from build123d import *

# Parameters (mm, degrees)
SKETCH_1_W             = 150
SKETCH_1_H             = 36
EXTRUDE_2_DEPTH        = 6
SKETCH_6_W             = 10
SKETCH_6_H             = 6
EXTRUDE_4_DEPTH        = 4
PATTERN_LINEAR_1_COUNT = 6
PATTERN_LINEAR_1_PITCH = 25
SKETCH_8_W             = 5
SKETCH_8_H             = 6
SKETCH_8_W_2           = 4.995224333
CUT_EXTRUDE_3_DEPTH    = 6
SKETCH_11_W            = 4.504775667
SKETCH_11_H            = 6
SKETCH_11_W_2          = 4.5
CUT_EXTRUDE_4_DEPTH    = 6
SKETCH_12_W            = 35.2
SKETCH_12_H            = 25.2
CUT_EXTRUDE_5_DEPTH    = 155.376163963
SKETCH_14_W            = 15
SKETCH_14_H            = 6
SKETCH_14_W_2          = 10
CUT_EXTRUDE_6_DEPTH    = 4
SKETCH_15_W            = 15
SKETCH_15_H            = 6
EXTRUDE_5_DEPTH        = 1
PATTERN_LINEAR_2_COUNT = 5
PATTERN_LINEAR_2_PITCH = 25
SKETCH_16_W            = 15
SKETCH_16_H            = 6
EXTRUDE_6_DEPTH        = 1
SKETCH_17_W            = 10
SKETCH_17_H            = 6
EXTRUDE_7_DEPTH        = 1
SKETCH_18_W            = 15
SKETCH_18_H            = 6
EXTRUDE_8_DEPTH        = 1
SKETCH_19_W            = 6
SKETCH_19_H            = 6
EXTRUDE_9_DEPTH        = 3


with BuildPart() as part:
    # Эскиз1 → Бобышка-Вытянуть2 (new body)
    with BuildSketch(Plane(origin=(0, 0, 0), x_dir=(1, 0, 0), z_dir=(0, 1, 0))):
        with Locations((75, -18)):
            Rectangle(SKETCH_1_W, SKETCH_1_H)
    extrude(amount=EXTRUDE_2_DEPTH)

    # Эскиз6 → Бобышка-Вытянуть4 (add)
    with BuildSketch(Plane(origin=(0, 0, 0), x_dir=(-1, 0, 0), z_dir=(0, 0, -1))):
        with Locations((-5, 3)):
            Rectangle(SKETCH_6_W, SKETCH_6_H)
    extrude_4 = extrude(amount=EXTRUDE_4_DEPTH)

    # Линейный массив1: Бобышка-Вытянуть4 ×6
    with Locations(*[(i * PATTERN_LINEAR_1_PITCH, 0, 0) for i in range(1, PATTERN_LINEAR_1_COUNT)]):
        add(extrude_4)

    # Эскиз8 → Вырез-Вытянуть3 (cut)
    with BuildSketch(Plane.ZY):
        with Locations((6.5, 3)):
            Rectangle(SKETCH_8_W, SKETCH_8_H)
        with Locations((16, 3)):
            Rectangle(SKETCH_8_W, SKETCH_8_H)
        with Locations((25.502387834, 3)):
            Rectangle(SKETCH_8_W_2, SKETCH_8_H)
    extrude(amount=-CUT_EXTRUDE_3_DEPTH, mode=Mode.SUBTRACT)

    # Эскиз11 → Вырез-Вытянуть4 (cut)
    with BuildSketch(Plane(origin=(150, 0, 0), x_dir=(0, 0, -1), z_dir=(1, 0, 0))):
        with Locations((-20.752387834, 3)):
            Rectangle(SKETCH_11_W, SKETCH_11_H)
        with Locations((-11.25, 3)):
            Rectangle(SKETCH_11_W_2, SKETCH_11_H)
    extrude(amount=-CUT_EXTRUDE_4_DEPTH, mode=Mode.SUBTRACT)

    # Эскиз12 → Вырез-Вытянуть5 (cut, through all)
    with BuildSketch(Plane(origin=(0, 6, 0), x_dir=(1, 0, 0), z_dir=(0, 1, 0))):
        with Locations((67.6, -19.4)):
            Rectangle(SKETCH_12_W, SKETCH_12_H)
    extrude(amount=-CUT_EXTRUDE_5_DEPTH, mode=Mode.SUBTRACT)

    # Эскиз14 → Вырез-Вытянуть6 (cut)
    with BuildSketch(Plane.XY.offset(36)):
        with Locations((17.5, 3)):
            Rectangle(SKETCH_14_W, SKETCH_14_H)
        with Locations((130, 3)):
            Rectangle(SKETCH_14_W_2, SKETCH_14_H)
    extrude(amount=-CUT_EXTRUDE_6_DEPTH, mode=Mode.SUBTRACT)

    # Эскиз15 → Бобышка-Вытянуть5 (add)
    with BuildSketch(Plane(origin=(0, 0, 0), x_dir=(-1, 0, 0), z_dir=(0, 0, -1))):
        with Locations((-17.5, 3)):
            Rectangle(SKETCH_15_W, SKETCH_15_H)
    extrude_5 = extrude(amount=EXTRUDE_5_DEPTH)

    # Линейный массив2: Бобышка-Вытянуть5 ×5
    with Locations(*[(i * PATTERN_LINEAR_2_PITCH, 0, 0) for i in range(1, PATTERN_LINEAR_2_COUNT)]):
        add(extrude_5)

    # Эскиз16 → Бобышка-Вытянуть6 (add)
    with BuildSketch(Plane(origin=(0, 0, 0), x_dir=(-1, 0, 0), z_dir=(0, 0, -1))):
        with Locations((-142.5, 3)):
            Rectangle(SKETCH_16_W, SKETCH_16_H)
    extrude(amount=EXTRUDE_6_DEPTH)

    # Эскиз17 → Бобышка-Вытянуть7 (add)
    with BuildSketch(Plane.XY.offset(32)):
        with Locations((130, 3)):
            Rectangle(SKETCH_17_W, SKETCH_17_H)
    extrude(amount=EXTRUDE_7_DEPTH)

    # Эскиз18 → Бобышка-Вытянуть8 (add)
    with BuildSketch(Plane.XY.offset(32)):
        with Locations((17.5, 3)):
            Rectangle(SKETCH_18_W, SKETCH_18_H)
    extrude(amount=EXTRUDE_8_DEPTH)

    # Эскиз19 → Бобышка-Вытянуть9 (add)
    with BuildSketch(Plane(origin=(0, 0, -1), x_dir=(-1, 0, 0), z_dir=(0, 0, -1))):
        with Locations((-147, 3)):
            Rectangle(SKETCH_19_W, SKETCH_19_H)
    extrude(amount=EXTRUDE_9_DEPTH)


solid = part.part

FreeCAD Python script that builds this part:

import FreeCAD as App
import Part
import Sketcher

V = App.Vector
Q = App.Units.Quantity


def add_polygon(sketch, points):
    """Adds a closed chain of lines whose ends are joined by coincident constraints."""
    first, n = sketch.GeometryCount, len(points)
    for a, b in zip(points, points[1:] + points[:1]):
        sketch.addGeometry(Part.LineSegment(App.Vector(*a, 0), App.Vector(*b, 0)), False)
    for i in range(n):
        sketch.addConstraint(Sketcher.Constraint("Coincident", first + i, 2, first + (i + 1) % n, 1))

doc = App.newDocument("Part")
body = doc.addObject("PartDesign::Body", "Body")

# Sketch on XZ plane
sketch1 = body.newObject("Sketcher::SketchObject", "Sketch")
sketch1.AttachmentSupport = (doc.getObject("XZ_Plane"), [""])
sketch1.MapMode = "FlatFace"
add_polygon(sketch1, [(0, 0), (0, 36), (150, 36), (150, 0)])  # lines 0-3
sketch1.addConstraint(Sketcher.Constraint("Vertical", 0))
sketch1.addConstraint(Sketcher.Constraint("Horizontal", 1))
sketch1.addConstraint(Sketcher.Constraint("Vertical", 2))
sketch1.addConstraint(Sketcher.Constraint("Horizontal", 3))
sketch1.addConstraint(Sketcher.Constraint("Coincident", 3, 2, -1, 1))
sketch1.addConstraint(Sketcher.Constraint("DistanceX", 1, 1, 1, 2, Q("150 mm")))
sketch1.addConstraint(Sketcher.Constraint("DistanceY", 0, 1, 0, 2, Q("36 mm")))
pad1 = body.newObject("PartDesign::Pad", "Pad")
pad1.Profile = sketch1
pad1.Length = 6
pad1.Reversed = True

# Sketch on XY plane
sketch2 = body.newObject("Sketcher::SketchObject", "Sketch001")
sketch2.AttachmentSupport = (doc.getObject("XY_Plane"), [""])
sketch2.MapMode = "FlatFace"
add_polygon(sketch2, [(10, 6), (10, 0), (0, 0), (0, 6)])  # lines 0-3
sketch2.addConstraint(Sketcher.Constraint("Vertical", 0))
sketch2.addConstraint(Sketcher.Constraint("Horizontal", 1))
sketch2.addConstraint(Sketcher.Constraint("Vertical", 2))
sketch2.addConstraint(Sketcher.Constraint("Horizontal", 3))
sketch2.addConstraint(Sketcher.Constraint("Coincident", 1, 2, -1, 1))
sketch2.addConstraint(Sketcher.Constraint("DistanceX", 1, 2, 1, 1, Q("10 mm")))
sketch2.addConstraint(Sketcher.Constraint("DistanceY", 0, 2, 0, 1, Q("6 mm")))
pad2 = body.newObject("PartDesign::Pad", "Pad001")
pad2.Profile = sketch2
pad2.Length = 4
pad2.Reversed = True
doc.recompute()

linearpattern = body.newObject("PartDesign::LinearPattern", "LinearPattern")
linearpattern.Originals = [pad2]
linearpattern.Direction = (doc.getObject("X_Axis"), [""])
linearpattern.Mode = "offset"
linearpattern.Offset = 25
linearpattern.Occurrences = 6
body.Tip = linearpattern

# Sketch on YZ plane
sketch3 = body.newObject("Sketcher::SketchObject", "Sketch002")
sketch3.AttachmentSupport = (doc.getObject("YZ_Plane"), [""])
sketch3.MapMode = "FlatFace"
add_polygon(sketch3, [(6, 4), (0, 4), (0, 9), (6, 9)])  # lines 0-3
add_polygon(sketch3, [(6, 13.5), (0, 13.5), (0, 18.5), (6, 18.5)])  # lines 4-7
add_polygon(sketch3, [(6, 23), (0, 23), (0, 28), (6, 28)])  # lines 8-11
sketch3.addConstraint(Sketcher.Constraint("Horizontal", 0))
sketch3.addConstraint(Sketcher.Constraint("Vertical", 1))
sketch3.addConstraint(Sketcher.Constraint("Horizontal", 2))
sketch3.addConstraint(Sketcher.Constraint("Vertical", 3))
sketch3.addConstraint(Sketcher.Constraint("Horizontal", 4))
sketch3.addConstraint(Sketcher.Constraint("Vertical", 5))
sketch3.addConstraint(Sketcher.Constraint("Horizontal", 6))
sketch3.addConstraint(Sketcher.Constraint("Vertical", 7))
sketch3.addConstraint(Sketcher.Constraint("Horizontal", 8))
sketch3.addConstraint(Sketcher.Constraint("Vertical", 9))
sketch3.addConstraint(Sketcher.Constraint("Horizontal", 10))
sketch3.addConstraint(Sketcher.Constraint("Vertical", 11))
sketch3.addConstraint(Sketcher.Constraint("PointOnObject", 0, 2, -2))
sketch3.addConstraint(Sketcher.Constraint("PointOnObject", 4, 2, -2))
sketch3.addConstraint(Sketcher.Constraint("PointOnObject", 8, 2, -2))
sketch3.addConstraint(Sketcher.Constraint("Vertical", 3, 2, 6, 2))
sketch3.addConstraint(Sketcher.Constraint("Vertical", 7, 2, 10, 2))
sketch3.addConstraint(Sketcher.Constraint("Equal", 3, 5))
sketch3.addConstraint(Sketcher.Constraint("DistanceX", 0, 2, 0, 1, Q("6 mm")))
sketch3.addConstraint(Sketcher.Constraint("DistanceY", 1, 1, 1, 2, Q("5 mm")))
sketch3.addConstraint(Sketcher.Constraint("DistanceY", -1, 1, 0, 2, Q("4 mm")))
sketch3.addConstraint(Sketcher.Constraint("DistanceY", -1, 1, 9, 2, Q("28 mm")))
sketch3.addConstraint(Sketcher.Constraint("DistanceY", -1, 1, 4, 2, Q("13.5 mm")))
sketch3.addConstraint(Sketcher.Constraint("DistanceY", 9, 1, 9, 2, Q("4.995224 mm")))
pocket1 = body.newObject("PartDesign::Pocket", "Pocket")
pocket1.Profile = sketch3
pocket1.Length = 6
pocket1.Reversed = True

# Sketch on YZ plane
sketch4 = body.newObject("Sketcher::SketchObject", "Sketch003")
sketch4.AttachmentSupport = (doc.getObject("YZ_Plane"), [""])
sketch4.MapMode = "FlatFace"
sketch4.AttachmentOffset = App.Placement(V(0, 0, 150), App.Rotation())
add_polygon(sketch4, [(6, 23), (0, 23), (0, 18.5), (6, 18.5)])  # lines 0-3
add_polygon(sketch4, [(6, 13.5), (0, 13.5), (0, 9), (6, 9)])  # lines 4-7
sketch4.addConstraint(Sketcher.Constraint("Horizontal", 0))
sketch4.addConstraint(Sketcher.Constraint("Vertical", 1))
sketch4.addConstraint(Sketcher.Constraint("Horizontal", 2))
sketch4.addConstraint(Sketcher.Constraint("Vertical", 3))
sketch4.addConstraint(Sketcher.Constraint("Horizontal", 4))
sketch4.addConstraint(Sketcher.Constraint("Vertical", 5))
sketch4.addConstraint(Sketcher.Constraint("Horizontal", 6))
sketch4.addConstraint(Sketcher.Constraint("Vertical", 7))
sketch4.addConstraint(Sketcher.Constraint("PointOnObject", 0, 2, -2))
sketch4.addConstraint(Sketcher.Constraint("PointOnObject", 4, 2, -2))
sketch4.addConstraint(Sketcher.Constraint("Vertical", 3, 2, 6, 2))
sketch4.addConstraint(Sketcher.Constraint("DistanceX", 0, 2, 0, 1, Q("6 mm")))
sketch4.addConstraint(Sketcher.Constraint("DistanceY", 5, 2, 5, 1, Q("4.5 mm")))
sketch4.addConstraint(Sketcher.Constraint("DistanceY", -1, 1, 5, 2, Q("9 mm")))
sketch4.addConstraint(Sketcher.Constraint("DistanceY", 4, 2, 1, 2, Q("5 mm")))
sketch4.addConstraint(Sketcher.Constraint("DistanceY", 1, 2, 1, 1, Q("4.504776 mm")))
pocket2 = body.newObject("PartDesign::Pocket", "Pocket001")
pocket2.Profile = sketch4
pocket2.Length = 6

# Sketch on XZ plane
sketch5 = body.newObject("Sketcher::SketchObject", "Sketch004")
sketch5.AttachmentSupport = (doc.getObject("XZ_Plane"), [""])
sketch5.MapMode = "FlatFace"
sketch5.AttachmentOffset = App.Placement(V(0, 0, -6), App.Rotation())
add_polygon(sketch5, [(50, 7), (50, 32), (85, 32), (85, 7)])  # lines 0-3
sketch5.addConstraint(Sketcher.Constraint("Vertical", 0))
sketch5.addConstraint(Sketcher.Constraint("Horizontal", 1))
sketch5.addConstraint(Sketcher.Constraint("Vertical", 2))
sketch5.addConstraint(Sketcher.Constraint("Horizontal", 3))
sketch5.addConstraint(Sketcher.Constraint("DistanceX", 1, 1, 1, 2, Q("35.2 mm")))
sketch5.addConstraint(Sketcher.Constraint("DistanceY", 0, 1, 0, 2, Q("25.2 mm")))
sketch5.addConstraint(Sketcher.Constraint("DistanceX", -1, 1, 0, 2, Q("50 mm")))
sketch5.addConstraint(Sketcher.Constraint("DistanceY", -1, 1, 0, 2, Q("32 mm")))
pocket3 = body.newObject("PartDesign::Pocket", "Pocket002")
pocket3.Profile = sketch5
pocket3.Type = "ThroughAll"
pocket3.Reversed = True

# Sketch on XY plane
sketch6 = body.newObject("Sketcher::SketchObject", "Sketch005")
sketch6.AttachmentSupport = (doc.getObject("XY_Plane"), [""])
sketch6.MapMode = "FlatFace"
sketch6.AttachmentOffset = App.Placement(V(0, 0, 36), App.Rotation())
add_polygon(sketch6, [(10, 6), (10, 0), (25, 0), (25, 6)])  # lines 0-3
add_polygon(sketch6, [(125, 6), (125, 0), (135, 0), (135, 6)])  # lines 4-7
sketch6.addConstraint(Sketcher.Constraint("Vertical", 0))
sketch6.addConstraint(Sketcher.Constraint("Horizontal", 1))
sketch6.addConstraint(Sketcher.Constraint("Vertical", 2))
sketch6.addConstraint(Sketcher.Constraint("Horizontal", 3))
sketch6.addConstraint(Sketcher.Constraint("Vertical", 4))
sketch6.addConstraint(Sketcher.Constraint("Horizontal", 5))
sketch6.addConstraint(Sketcher.Constraint("Vertical", 6))
sketch6.addConstraint(Sketcher.Constraint("Horizontal", 7))
sketch6.addConstraint(Sketcher.Constraint("PointOnObject", 0, 2, -1))
sketch6.addConstraint(Sketcher.Constraint("PointOnObject", 4, 2, -1))
sketch6.addConstraint(Sketcher.Constraint("Horizontal", 3, 2, 6, 2))
sketch6.addConstraint(Sketcher.Constraint("DistanceX", 1, 1, 1, 2, Q("15 mm")))
sketch6.addConstraint(Sketcher.Constraint("DistanceX", 5, 1, 5, 2, Q("10 mm")))
sketch6.addConstraint(Sketcher.Constraint("DistanceY", 0, 2, 0, 1, Q("6 mm")))
sketch6.addConstraint(Sketcher.Constraint("DistanceX", -1, 1, 0, 2, Q("10 mm")))
sketch6.addConstraint(Sketcher.Constraint("DistanceX", -1, 1, 4, 2, Q("125 mm")))
pocket4 = body.newObject("PartDesign::Pocket", "Pocket003")
pocket4.Profile = sketch6
pocket4.Length = 4

# Sketch on XY plane
sketch7 = body.newObject("Sketcher::SketchObject", "Sketch006")
sketch7.AttachmentSupport = (doc.getObject("XY_Plane"), [""])
sketch7.MapMode = "FlatFace"
add_polygon(sketch7, [(25, 6), (25, 0), (10, 0), (10, 6)])  # lines 0-3
sketch7.addConstraint(Sketcher.Constraint("Vertical", 0))
sketch7.addConstraint(Sketcher.Constraint("Horizontal", 1))
sketch7.addConstraint(Sketcher.Constraint("Vertical", 2))
sketch7.addConstraint(Sketcher.Constraint("Horizontal", 3))
sketch7.addConstraint(Sketcher.Constraint("PointOnObject", 0, 2, -1))
sketch7.addConstraint(Sketcher.Constraint("DistanceX", 1, 2, 1, 1, Q("15 mm")))
sketch7.addConstraint(Sketcher.Constraint("DistanceY", 0, 2, 0, 1, Q("6 mm")))
sketch7.addConstraint(Sketcher.Constraint("DistanceX", -1, 1, 0, 2, Q("25 mm")))
pad3 = body.newObject("PartDesign::Pad", "Pad002")
pad3.Profile = sketch7
pad3.Length = 1
pad3.Reversed = True
doc.recompute()

linearpattern2 = body.newObject("PartDesign::LinearPattern", "LinearPattern001")
linearpattern2.Originals = [pad3]
linearpattern2.Direction = (doc.getObject("X_Axis"), [""])
linearpattern2.Mode = "offset"
linearpattern2.Offset = 25
linearpattern2.Occurrences = 5
body.Tip = linearpattern2

# Sketch on XY plane
sketch8 = body.newObject("Sketcher::SketchObject", "Sketch007")
sketch8.AttachmentSupport = (doc.getObject("XY_Plane"), [""])
sketch8.MapMode = "FlatFace"
add_polygon(sketch8, [(150, 6), (150, 0), (135, 0), (135, 6)])  # lines 0-3
sketch8.addConstraint(Sketcher.Constraint("Vertical", 0))
sketch8.addConstraint(Sketcher.Constraint("Horizontal", 1))
sketch8.addConstraint(Sketcher.Constraint("Vertical", 2))
sketch8.addConstraint(Sketcher.Constraint("Horizontal", 3))
sketch8.addConstraint(Sketcher.Constraint("PointOnObject", 0, 2, -1))
sketch8.addConstraint(Sketcher.Constraint("DistanceX", 1, 2, 1, 1, Q("15 mm")))
sketch8.addConstraint(Sketcher.Constraint("DistanceY", 0, 2, 0, 1, Q("6 mm")))
sketch8.addConstraint(Sketcher.Constraint("DistanceX", -1, 1, 0, 2, Q("150 mm")))
pad4 = body.newObject("PartDesign::Pad", "Pad003")
pad4.Profile = sketch8
pad4.Length = 1
pad4.Reversed = True

# Sketch on XY plane
sketch9 = body.newObject("Sketcher::SketchObject", "Sketch008")
sketch9.AttachmentSupport = (doc.getObject("XY_Plane"), [""])
sketch9.MapMode = "FlatFace"
sketch9.AttachmentOffset = App.Placement(V(0, 0, 32), App.Rotation())
add_polygon(sketch9, [(125, 6), (125, 0), (135, 0), (135, 6)])  # lines 0-3
sketch9.addConstraint(Sketcher.Constraint("Vertical", 0))
sketch9.addConstraint(Sketcher.Constraint("Horizontal", 1))
sketch9.addConstraint(Sketcher.Constraint("Vertical", 2))
sketch9.addConstraint(Sketcher.Constraint("Horizontal", 3))
sketch9.addConstraint(Sketcher.Constraint("PointOnObject", 0, 2, -1))
sketch9.addConstraint(Sketcher.Constraint("DistanceX", 1, 1, 1, 2, Q("10 mm")))
sketch9.addConstraint(Sketcher.Constraint("DistanceY", 0, 2, 0, 1, Q("6 mm")))
sketch9.addConstraint(Sketcher.Constraint("DistanceX", -1, 1, 0, 2, Q("125 mm")))
pad5 = body.newObject("PartDesign::Pad", "Pad004")
pad5.Profile = sketch9
pad5.Length = 1

# Sketch on XY plane
sketch10 = body.newObject("Sketcher::SketchObject", "Sketch009")
sketch10.AttachmentSupport = (doc.getObject("XY_Plane"), [""])
sketch10.MapMode = "FlatFace"
sketch10.AttachmentOffset = App.Placement(V(0, 0, 32), App.Rotation())
add_polygon(sketch10, [(10, 6), (10, 0), (25, 0), (25, 6)])  # lines 0-3
sketch10.addConstraint(Sketcher.Constraint("Vertical", 0))
sketch10.addConstraint(Sketcher.Constraint("Horizontal", 1))
sketch10.addConstraint(Sketcher.Constraint("Vertical", 2))
sketch10.addConstraint(Sketcher.Constraint("Horizontal", 3))
sketch10.addConstraint(Sketcher.Constraint("PointOnObject", 0, 2, -1))
sketch10.addConstraint(Sketcher.Constraint("DistanceX", 1, 1, 1, 2, Q("15 mm")))
sketch10.addConstraint(Sketcher.Constraint("DistanceY", 0, 2, 0, 1, Q("6 mm")))
sketch10.addConstraint(Sketcher.Constraint("DistanceX", -1, 1, 0, 2, Q("10 mm")))
pad6 = body.newObject("PartDesign::Pad", "Pad005")
pad6.Profile = sketch10
pad6.Length = 1

# Sketch on XY plane
sketch11 = body.newObject("Sketcher::SketchObject", "Sketch010")
sketch11.AttachmentSupport = (doc.getObject("XY_Plane"), [""])
sketch11.MapMode = "FlatFace"
sketch11.AttachmentOffset = App.Placement(V(0, 0, -1), App.Rotation())
add_polygon(sketch11, [(150, 6), (150, 0), (144, 0), (144, 6)])  # lines 0-3
sketch11.addConstraint(Sketcher.Constraint("Vertical", 0))
sketch11.addConstraint(Sketcher.Constraint("Horizontal", 1))
sketch11.addConstraint(Sketcher.Constraint("Vertical", 2))
sketch11.addConstraint(Sketcher.Constraint("Horizontal", 3))
sketch11.addConstraint(Sketcher.Constraint("PointOnObject", 0, 2, -1))
sketch11.addConstraint(Sketcher.Constraint("Equal", 3, 0))
sketch11.addConstraint(Sketcher.Constraint("DistanceX", 1, 2, 1, 1, Q("6 mm")))
sketch11.addConstraint(Sketcher.Constraint("DistanceX", -1, 1, 0, 2, Q("150 mm")))
pad7 = body.newObject("PartDesign::Pad", "Pad006")
pad7.Profile = sketch11
pad7.Length = 3
pad7.Reversed = True

doc.recompute()
